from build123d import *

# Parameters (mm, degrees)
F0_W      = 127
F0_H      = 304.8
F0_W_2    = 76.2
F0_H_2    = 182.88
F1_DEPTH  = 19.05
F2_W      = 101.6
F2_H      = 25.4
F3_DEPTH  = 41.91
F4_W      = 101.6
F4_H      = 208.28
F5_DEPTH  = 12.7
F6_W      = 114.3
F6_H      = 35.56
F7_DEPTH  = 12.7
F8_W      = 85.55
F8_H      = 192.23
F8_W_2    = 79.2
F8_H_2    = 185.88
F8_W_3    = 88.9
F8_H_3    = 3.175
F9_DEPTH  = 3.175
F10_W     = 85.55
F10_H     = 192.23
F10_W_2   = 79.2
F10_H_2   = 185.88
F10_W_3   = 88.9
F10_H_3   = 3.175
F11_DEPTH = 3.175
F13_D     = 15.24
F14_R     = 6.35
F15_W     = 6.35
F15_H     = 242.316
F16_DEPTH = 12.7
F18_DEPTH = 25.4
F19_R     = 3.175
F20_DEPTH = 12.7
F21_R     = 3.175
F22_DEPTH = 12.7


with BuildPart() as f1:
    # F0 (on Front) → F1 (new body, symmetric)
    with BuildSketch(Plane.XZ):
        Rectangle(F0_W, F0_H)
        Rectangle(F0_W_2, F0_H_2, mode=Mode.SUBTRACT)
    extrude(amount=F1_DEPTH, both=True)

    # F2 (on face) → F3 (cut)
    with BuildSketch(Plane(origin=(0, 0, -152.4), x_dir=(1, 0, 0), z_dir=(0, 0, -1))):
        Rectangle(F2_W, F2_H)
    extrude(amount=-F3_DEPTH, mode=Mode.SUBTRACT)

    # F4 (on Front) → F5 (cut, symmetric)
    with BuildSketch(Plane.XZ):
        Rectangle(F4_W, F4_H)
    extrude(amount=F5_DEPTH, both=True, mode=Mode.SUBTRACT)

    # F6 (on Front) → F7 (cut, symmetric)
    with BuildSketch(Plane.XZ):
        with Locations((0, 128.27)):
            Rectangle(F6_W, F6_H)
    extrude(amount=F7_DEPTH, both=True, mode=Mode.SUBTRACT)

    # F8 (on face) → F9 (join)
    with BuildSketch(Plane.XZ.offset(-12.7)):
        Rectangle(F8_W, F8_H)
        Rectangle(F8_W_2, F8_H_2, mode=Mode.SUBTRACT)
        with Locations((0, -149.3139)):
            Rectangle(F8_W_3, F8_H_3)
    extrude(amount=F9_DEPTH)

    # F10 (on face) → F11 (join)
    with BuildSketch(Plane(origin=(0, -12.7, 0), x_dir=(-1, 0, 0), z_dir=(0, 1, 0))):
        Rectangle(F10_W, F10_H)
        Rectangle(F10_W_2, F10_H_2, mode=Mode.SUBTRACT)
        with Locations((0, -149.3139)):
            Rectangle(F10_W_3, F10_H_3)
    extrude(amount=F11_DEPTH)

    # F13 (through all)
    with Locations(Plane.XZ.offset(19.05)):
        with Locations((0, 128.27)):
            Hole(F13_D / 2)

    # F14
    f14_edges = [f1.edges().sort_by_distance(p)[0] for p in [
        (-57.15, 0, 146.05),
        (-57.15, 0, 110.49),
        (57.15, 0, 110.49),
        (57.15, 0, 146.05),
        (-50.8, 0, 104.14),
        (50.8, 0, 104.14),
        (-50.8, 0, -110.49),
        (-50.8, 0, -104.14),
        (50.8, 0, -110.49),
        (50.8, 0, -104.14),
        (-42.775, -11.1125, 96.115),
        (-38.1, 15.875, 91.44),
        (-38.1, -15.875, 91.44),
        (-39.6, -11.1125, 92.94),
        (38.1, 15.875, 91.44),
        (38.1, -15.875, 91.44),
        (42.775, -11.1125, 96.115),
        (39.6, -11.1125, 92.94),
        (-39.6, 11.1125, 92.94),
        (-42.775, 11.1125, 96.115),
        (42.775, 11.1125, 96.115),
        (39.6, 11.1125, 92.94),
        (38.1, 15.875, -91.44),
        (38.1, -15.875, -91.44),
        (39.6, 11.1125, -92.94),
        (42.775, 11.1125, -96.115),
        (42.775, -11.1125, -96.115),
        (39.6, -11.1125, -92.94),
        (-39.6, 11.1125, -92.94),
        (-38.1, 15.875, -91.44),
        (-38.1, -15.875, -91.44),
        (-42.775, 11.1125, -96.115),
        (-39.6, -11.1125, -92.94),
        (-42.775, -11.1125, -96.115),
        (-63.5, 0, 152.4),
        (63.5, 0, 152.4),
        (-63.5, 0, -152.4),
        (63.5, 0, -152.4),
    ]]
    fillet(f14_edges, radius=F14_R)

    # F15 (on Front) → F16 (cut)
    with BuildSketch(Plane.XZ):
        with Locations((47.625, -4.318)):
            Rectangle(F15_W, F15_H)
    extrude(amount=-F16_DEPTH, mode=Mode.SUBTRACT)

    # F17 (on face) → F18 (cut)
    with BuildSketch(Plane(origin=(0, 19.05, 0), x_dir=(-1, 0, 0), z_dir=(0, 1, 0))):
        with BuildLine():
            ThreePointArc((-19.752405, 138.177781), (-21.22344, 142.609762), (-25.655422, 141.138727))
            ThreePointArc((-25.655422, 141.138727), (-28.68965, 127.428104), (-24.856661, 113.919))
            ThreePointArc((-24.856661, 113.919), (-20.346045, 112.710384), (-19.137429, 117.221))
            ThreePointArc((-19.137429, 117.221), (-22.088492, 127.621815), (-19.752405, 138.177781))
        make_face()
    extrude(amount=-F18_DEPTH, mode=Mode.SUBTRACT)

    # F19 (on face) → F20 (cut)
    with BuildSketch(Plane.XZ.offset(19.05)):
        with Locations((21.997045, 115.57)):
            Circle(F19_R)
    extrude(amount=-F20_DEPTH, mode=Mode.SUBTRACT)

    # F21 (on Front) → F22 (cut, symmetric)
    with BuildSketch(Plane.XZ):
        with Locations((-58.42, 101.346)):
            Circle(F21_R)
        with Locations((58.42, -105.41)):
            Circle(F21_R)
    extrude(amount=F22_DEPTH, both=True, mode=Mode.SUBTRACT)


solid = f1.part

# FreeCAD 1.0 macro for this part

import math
import FreeCAD as App
import Part
import Sketcher

V = App.Vector
Q = App.Units.Quantity


def edges_at(feature, points):
    """Names of the edges that pass closest to the given points."""
    edges = feature.Shape.Edges
    near = lambda p: min(range(len(edges)), key=lambda i: edges[i].distToShape(Part.Vertex(*p))[0])
    return sorted({f"Edge{near(p) + 1}" for p in points})

doc = App.newDocument("Part")
body = doc.addObject("PartDesign::Body", "Body")

sketch1 = body.newObject("Sketcher::SketchObject", "Sketch")
sketch1.AttachmentSupport = (doc.getObject("XZ_Plane"), [""])
sketch1.MapMode = "FlatFace"
sketch1.addGeometry(Part.LineSegment(V(-64, 152, 0), V(-64, -152, 0)), False)
sketch1.addGeometry(Part.LineSegment(V(-64, -152, 0), V(64, -152, 0)), False)
sketch1.addGeometry(Part.LineSegment(V(64, -152, 0), V(64, 152, 0)), False)
sketch1.addGeometry(Part.LineSegment(V(64, 152, 0), V(-64, 152, 0)), False)
sketch1.addGeometry(Part.LineSegment(V(38, -91, 0), V(-38, -91, 0)), False)
sketch1.addGeometry(Part.LineSegment(V(-38, -91, 0), V(-38, 91, 0)), False)
sketch1.addGeometry(Part.LineSegment(V(-38, 91, 0), V(38, 91, 0)), False)
sketch1.addGeometry(Part.LineSegment(V(38, 91, 0), V(38, -91, 0)), False)
sketch1.addConstraint(Sketcher.Constraint("Coincident", 0, 2, 1, 1))
sketch1.addConstraint(Sketcher.Constraint("Coincident", 1, 2, 2, 1))
sketch1.addConstraint(Sketcher.Constraint("Coincident", 2, 2, 3, 1))
sketch1.addConstraint(Sketcher.Constraint("Coincident", 3, 2, 0, 1))
sketch1.addConstraint(Sketcher.Constraint("Coincident", 4, 2, 5, 1))
sketch1.addConstraint(Sketcher.Constraint("Coincident", 5, 2, 6, 1))
sketch1.addConstraint(Sketcher.Constraint("Coincident", 6, 2, 7, 1))
sketch1.addConstraint(Sketcher.Constraint("Coincident", 7, 2, 4, 1))
sketch1.addConstraint(Sketcher.Constraint("Vertical", 0))
sketch1.addConstraint(Sketcher.Constraint("Horizontal", 1))
sketch1.addConstraint(Sketcher.Constraint("Vertical", 2))
sketch1.addConstraint(Sketcher.Constraint("Horizontal", 3))
sketch1.addConstraint(Sketcher.Constraint("Horizontal", 4))
sketch1.addConstraint(Sketcher.Constraint("Vertical", 5))
sketch1.addConstraint(Sketcher.Constraint("Horizontal", 6))
sketch1.addConstraint(Sketcher.Constraint("Vertical", 7))
sketch1.addConstraint(Sketcher.Constraint("Symmetric", 0, 2, 2, 2, -1, 1))
sketch1.addConstraint(Sketcher.Constraint("Symmetric", 4, 2, 6, 2, -1, 1))
sketch1.addConstraint(Sketcher.Constraint("DistanceX", 1, 1, 1, 2, Q("5 in")))
sketch1.addConstraint(Sketcher.Constraint("DistanceX", 4, 2, 4, 1, Q("3 in")))
sketch1.addConstraint(Sketcher.Constraint("DistanceY", 0, 2, 0, 1, Q("12 in")))
sketch1.addConstraint(Sketcher.Constraint("DistanceY", 5, 1, 5, 2, Q("7.2 in")))
pad1 = body.newObject("PartDesign::Pad", "Pad")
pad1.Profile = sketch1
pad1.Length = Q("1.5 in")
pad1.Midplane = True

sketch2 = body.newObject("Sketcher::SketchObject", "Sketch001")
sketch2.AttachmentSupport = (doc.getObject("XY_Plane"), [""])
sketch2.MapMode = "FlatFace"
sketch2.AttachmentOffset = App.Placement(V(0, 0, -6 * 25.4), App.Rotation())
sketch2.addGeometry(Part.LineSegment(V(-51, -13, 0), V(-51, 13, 0)), False)
sketch2.addGeometry(Part.LineSegment(V(-51, 13, 0), V(51, 13, 0)), False)
sketch2.addGeometry(Part.LineSegment(V(51, 13, 0), V(51, -13, 0)), False)
sketch2.addGeometry(Part.LineSegment(V(51, -13, 0), V(-51, -13, 0)), False)
sketch2.addConstraint(Sketcher.Constraint("Coincident", 0, 2, 1, 1))
sketch2.addConstraint(Sketcher.Constraint("Coincident", 1, 2, 2, 1))
sketch2.addConstraint(Sketcher.Constraint("Coincident", 2, 2, 3, 1))
sketch2.addConstraint(Sketcher.Constraint("Coincident", 3, 2, 0, 1))
sketch2.addConstraint(Sketcher.Constraint("Vertical", 0))
sketch2.addConstraint(Sketcher.Constraint("Horizontal", 1))
sketch2.addConstraint(Sketcher.Constraint("Vertical", 2))
sketch2.addConstraint(Sketcher.Constraint("Horizontal", 3))
sketch2.addConstraint(Sketcher.Constraint("Symmetric", 0, 2, 2, 2, -1, 1))
sketch2.addConstraint(Sketcher.Constraint("DistanceX", 1, 1, 1, 2, Q("4 in")))
sketch2.addConstraint(Sketcher.Constraint("DistanceY", 0, 1, 0, 2, Q("1 in")))
pocket1 = body.newObject("PartDesign::Pocket", "Pocket")
pocket1.Profile = sketch2
pocket1.Length = Q("1.65 in")
pocket1.Reversed = True

sketch3 = body.newObject("Sketcher::SketchObject", "Sketch002")
sketch3.AttachmentSupport = (doc.getObject("XZ_Plane"), [""])
sketch3.MapMode = "FlatFace"
sketch3.addGeometry(Part.LineSegment(V(-51, 104, 0), V(-51, -104, 0)), False)
sketch3.addGeometry(Part.LineSegment(V(-51, -104, 0), V(51, -104, 0)), False)
sketch3.addGeometry(Part.LineSegment(V(51, -104, 0), V(51, 104, 0)), False)
sketch3.addGeometry(Part.LineSegment(V(51, 104, 0), V(-51, 104, 0)), False)
sketch3.addConstraint(Sketcher.Constraint("Coincident", 0, 2, 1, 1))
sketch3.addConstraint(Sketcher.Constraint("Coincident", 1, 2, 2, 1))
sketch3.addConstraint(Sketcher.Constraint("Coincident", 2, 2, 3, 1))
sketch3.addConstraint(Sketcher.Constraint("Coincident", 3, 2, 0, 1))
sketch3.addConstraint(Sketcher.Constraint("Vertical", 0))
sketch3.addConstraint(Sketcher.Constraint("Horizontal", 1))
sketch3.addConstraint(Sketcher.Constraint("Vertical", 2))
sketch3.addConstraint(Sketcher.Constraint("Horizontal", 3))
sketch3.addConstraint(Sketcher.Constraint("Symmetric", 0, 2, 2, 2, -1, 1))
sketch3.addConstraint(Sketcher.Constraint("DistanceX", 1, 1, 1, 2, Q("4 in")))
sketch3.addConstraint(Sketcher.Constraint("DistanceY", 0, 2, 0, 1, Q("8.2 in")))
pocket2 = body.newObject("PartDesign::Pocket", "Pocket001")
pocket2.Profile = sketch3
pocket2.Length = Q("1 in")
pocket2.Midplane = True

sketch4 = body.newObject("Sketcher::SketchObject", "Sketch003")
sketch4.AttachmentSupport = (doc.getObject("XZ_Plane"), [""])
sketch4.MapMode = "FlatFace"
sketch4.addGeometry(Part.LineSegment(V(-57, 146, 0), V(-57, 110, 0)), False)
sketch4.addGeometry(Part.LineSegment(V(-57, 110, 0), V(57, 110, 0)), False)
sketch4.addGeometry(Part.LineSegment(V(57, 110, 0), V(57, 146, 0)), False)
sketch4.addGeometry(Part.LineSegment(V(57, 146, 0), V(-57, 146, 0)), False)
sketch4.addConstraint(Sketcher.Constraint("Coincident", 0, 2, 1, 1))
sketch4.addConstraint(Sketcher.Constraint("Coincident", 1, 2, 2, 1))
sketch4.addConstraint(Sketcher.Constraint("Coincident", 2, 2, 3, 1))
sketch4.addConstraint(Sketcher.Constraint("Coincident", 3, 2, 0, 1))
sketch4.addConstraint(Sketcher.Constraint("Vertical", 0))
sketch4.addConstraint(Sketcher.Constraint("Horizontal", 1))
sketch4.addConstraint(Sketcher.Constraint("Vertical", 2))
sketch4.addConstraint(Sketcher.Constraint("Horizontal", 3))
sketch4.addConstraint(Sketcher.Constraint("DistanceX", 1, 1, 1, 2, Q("4.5 in")))
sketch4.addConstraint(Sketcher.Constraint("DistanceY", 0, 2, 0, 1, Q("1.4 in")))
sketch4.addConstraint(Sketcher.Constraint("DistanceX", 0, 2, -1, 1, Q("2.25 in")))
sketch4.addConstraint(Sketcher.Constraint("DistanceY", -1, 1, 0, 2, Q("4.35 in")))
pocket3 = body.newObject("PartDesign::Pocket", "Pocket002")
pocket3.Profile = sketch4
pocket3.Length = Q("1 in")
pocket3.Midplane = True

sketch5 = body.newObject("Sketcher::SketchObject", "Sketch004")
sketch5.AttachmentSupport = (doc.getObject("XZ_Plane"), [""])
sketch5.MapMode = "FlatFace"
sketch5.AttachmentOffset = App.Placement(V(0, 0, -0.5 * 25.4), App.Rotation())
sketch5.addGeometry(Part.LineSegment(V(-42.8, 96.1, 0), V(-42.8, -96.1, 0)), False)
sketch5.addGeometry(Part.LineSegment(V(-42.8, -96.1, 0), V(42.8, -96.1, 0)), False)
sketch5.addGeometry(Part.LineSegment(V(42.8, -96.1, 0), V(42.8, 96.1, 0)), False)
sketch5.addGeometry(Part.LineSegment(V(42.8, 96.1, 0), V(-42.8, 96.1, 0)), False)
sketch5.addGeometry(Part.LineSegment(V(39.6, -92.9, 0), V(-39.6, -92.9, 0)), False)
sketch5.addGeometry(Part.LineSegment(V(-39.6, -92.9, 0), V(-39.6, 92.9, 0)), False)
sketch5.addGeometry(Part.LineSegment(V(-39.6, 92.9, 0), V(39.6, 92.9, 0)), False)
sketch5.addGeometry(Part.LineSegment(V(39.6, 92.9, 0), V(39.6, -92.9, 0)), False)
sketch5.addGeometry(Part.LineSegment(V(-44.5, -147.7, 0), V(-44.5, -150.9, 0)), False)
sketch5.addGeometry(Part.LineSegment(V(-44.5, -150.9, 0), V(44.5, -150.9, 0)), False)
sketch5.addGeometry(Part.LineSegment(V(44.5, -150.9, 0), V(44.5, -147.7, 0)), False)
sketch5.addGeometry(Part.LineSegment(V(44.5, -147.7, 0), V(-44.5, -147.7, 0)), False)
sketch5.addConstraint(Sketcher.Constraint("Coincident", 0, 2, 1, 1))
sketch5.addConstraint(Sketcher.Constraint("Coincident", 1, 2, 2, 1))
sketch5.addConstraint(Sketcher.Constraint("Coincident", 2, 2, 3, 1))
sketch5.addConstraint(Sketcher.Constraint("Coincident", 3, 2, 0, 1))
sketch5.addConstraint(Sketcher.Constraint("Coincident", 4, 2, 5, 1))
sketch5.addConstraint(Sketcher.Constraint("Coincident", 5, 2, 6, 1))
sketch5.addConstraint(Sketcher.Constraint("Coincident", 6, 2, 7, 1))
sketch5.addConstraint(Sketcher.Constraint("Coincident", 7, 2, 4, 1))
sketch5.addConstraint(Sketcher.Constraint("Coincident", 8, 2, 9, 1))
sketch5.addConstraint(Sketcher.Constraint("Coincident", 9, 2, 10, 1))
sketch5.addConstraint(Sketcher.Constraint("Coincident", 10, 2, 11, 1))
sketch5.addConstraint(Sketcher.Constraint("Coincident", 11, 2, 8, 1))
sketch5.addConstraint(Sketcher.Constraint("Vertical", 0))
sketch5.addConstraint(Sketcher.Constraint("Horizontal", 1))
sketch5.addConstraint(Sketcher.Constraint("Vertical", 2))
sketch5.addConstraint(Sketcher.Constraint("Horizontal", 3))
sketch5.addConstraint(Sketcher.Constraint("Horizontal", 4))
sketch5.addConstraint(Sketcher.Constraint("Vertical", 5))
sketch5.addConstraint(Sketcher.Constraint("Horizontal", 6))
sketch5.addConstraint(Sketcher.Constraint("Vertical", 7))
sketch5.addConstraint(Sketcher.Constraint("Vertical", 8))
sketch5.addConstraint(Sketcher.Constraint("Horizontal", 9))
sketch5.addConstraint(Sketcher.Constraint("Vertical", 10))
sketch5.addConstraint(Sketcher.Constraint("Horizontal", 11))
sketch5.addConstraint(Sketcher.Constraint("Symmetric", 0, 2, 2, 2, -1, 1))
sketch5.addConstraint(Sketcher.Constraint("Symmetric", 4, 2, 6, 2, -1, 1))
sketch5.addConstraint(Sketcher.Constraint("DistanceX", 9, 1, 9, 2, Q("3.5 in")))
sketch5.addConstraint(Sketcher.Constraint("DistanceY", 8, 2, 8, 1, Q("0.125 in")))
sketch5.addConstraint(Sketcher.Constraint("DistanceX", 8, 2, -1, 1, Q("1.75 in")))
sketch5.addConstraint(Sketcher.Constraint("DistanceY", 8, 2, -1, 1, Q("5.941 in")))
sketch5.addConstraint(Sketcher.Constraint("DistanceX", 0, 2, 4, 2, Q("0.125 in")))
sketch5.addConstraint(Sketcher.Constraint("DistanceY", 0, 2, 4, 2, Q("0.125 in")))
sketch5.addConstraint(Sketcher.Constraint("DistanceX", 1, 1, 1, 2, Q("85.55 mm")))
sketch5.addConstraint(Sketcher.Constraint("DistanceY", 0, 2, 0, 1, Q("192.23 mm")))
pad2 = body.newObject("PartDesign::Pad", "Pad001")
pad2.Profile = sketch5
pad2.Length = Q("0.125 in")

sketch6 = body.newObject("Sketcher::SketchObject", "Sketch005")
sketch6.AttachmentSupport = (doc.getObject("XZ_Plane"), [""])
sketch6.MapMode = "FlatFace"
sketch6.AttachmentOffset = App.Placement(V(0, 0, 0.5 * 25.4), App.Rotation())
sketch6.addGeometry(Part.LineSegment(V(42.8, 96.1, 0), V(42.8, -96.1, 0)), False)
sketch6.addGeometry(Part.LineSegment(V(42.8, -96.1, 0), V(-42.8, -96.1, 0)), False)
sketch6.addGeometry(Part.LineSegment(V(-42.8, -96.1, 0), V(-42.8, 96.1, 0)), False)
sketch6.addGeometry(Part.LineSegment(V(-42.8, 96.1, 0), V(42.8, 96.1, 0)), False)
sketch6.addGeometry(Part.LineSegment(V(-39.6, -92.9, 0), V(39.6, -92.9, 0)), False)
sketch6.addGeometry(Part.LineSegment(V(39.6, -92.9, 0), V(39.6, 92.9, 0)), False)
sketch6.addGeometry(Part.LineSegment(V(39.6, 92.9, 0), V(-39.6, 92.9, 0)), False)
sketch6.addGeometry(Part.LineSegment(V(-39.6, 92.9, 0), V(-39.6, -92.9, 0)), False)
sketch6.addGeometry(Part.LineSegment(V(44.5, -147.7, 0), V(44.5, -150.9, 0)), False)
sketch6.addGeometry(Part.LineSegment(V(44.5, -150.9, 0), V(-44.5, -150.9, 0)), False)
sketch6.addGeometry(Part.LineSegment(V(-44.5, -150.9, 0), V(-44.5, -147.7, 0)), False)
sketch6.addGeometry(Part.LineSegment(V(-44.5, -147.7, 0), V(44.5, -147.7, 0)), False)
sketch6.addConstraint(Sketcher.Constraint("Coincident", 0, 2, 1, 1))
sketch6.addConstraint(Sketcher.Constraint("Coincident", 1, 2, 2, 1))
sketch6.addConstraint(Sketcher.Constraint("Coincident", 2, 2, 3, 1))
sketch6.addConstraint(Sketcher.Constraint("Coincident", 3, 2, 0, 1))
sketch6.addConstraint(Sketcher.Constraint("Coincident", 4, 2, 5, 1))
sketch6.addConstraint(Sketcher.Constraint("Coincident", 5, 2, 6, 1))
sketch6.addConstraint(Sketcher.Constraint("Coincident", 6, 2, 7, 1))
sketch6.addConstraint(Sketcher.Constraint("Coincident", 7, 2, 4, 1))
sketch6.addConstraint(Sketcher.Constraint("Coincident", 8, 2, 9, 1))
sketch6.addConstraint(Sketcher.Constraint("Coincident", 9, 2, 10, 1))
sketch6.addConstraint(Sketcher.Constraint("Coincident", 10, 2, 11, 1))
sketch6.addConstraint(Sketcher.Constraint("Coincident", 11, 2, 8, 1))
sketch6.addConstraint(Sketcher.Constraint("Vertical", 0))
sketch6.addConstraint(Sketcher.Constraint("Horizontal", 1))
sketch6.addConstraint(Sketcher.Constraint("Vertical", 2))
sketch6.addConstraint(Sketcher.Constraint("Horizontal", 3))
sketch6.addConstraint(Sketcher.Constraint("Horizontal", 4))
sketch6.addConstraint(Sketcher.Constraint("Vertical", 5))
sketch6.addConstraint(Sketcher.Constraint("Horizontal", 6))
sketch6.addConstraint(Sketcher.Constraint("Vertical", 7))
sketch6.addConstraint(Sketcher.Constraint("Vertical", 8))
sketch6.addConstraint(Sketcher.Constraint("Horizontal", 9))
sketch6.addConstraint(Sketcher.Constraint("Vertical", 10))
sketch6.addConstraint(Sketcher.Constraint("Horizontal", 11))
sketch6.addConstraint(Sketcher.Constraint("Symmetric", 0, 2, 2, 2, -1, 1))
sketch6.addConstraint(Sketcher.Constraint("Symmetric", 4, 2, 6, 2, -1, 1))
sketch6.addConstraint(Sketcher.Constraint("DistanceX", 9, 2, 9, 1, Q("3.5 in")))
sketch6.addConstraint(Sketcher.Constraint("DistanceY", 8, 2, 8, 1, Q("0.125 in")))
sketch6.addConstraint(Sketcher.Constraint("DistanceX", -1, 1, 8, 2, Q("1.75 in")))
sketch6.addConstraint(Sketcher.Constraint("DistanceY", 8, 2, -1, 1, Q("5.941 in")))
sketch6.addConstraint(Sketcher.Constraint("DistanceX", 4, 2, 0, 2, Q("0.125 in")))
sketch6.addConstraint(Sketcher.Constraint("DistanceY", 0, 2, 4, 2, Q("0.125 in")))
sketch6.addConstraint(Sketcher.Constraint("DistanceX", 1, 2, 1, 1, Q("85.55 mm")))
sketch6.addConstraint(Sketcher.Constraint("DistanceY", 0, 2, 0, 1, Q("192.23 mm")))
pad3 = body.newObject("PartDesign::Pad", "Pad002")
pad3.Profile = sketch6
pad3.Length = Q("0.125 in")
pad3.Reversed = True

sketch7 = body.newObject("Sketcher::SketchObject", "Sketch006")
sketch7.AttachmentSupport = (doc.getObject("XZ_Plane"), [""])
sketch7.MapMode = "FlatFace"
sketch7.AttachmentOffset = App.Placement(V(0, 0, 0.75 * 25.4), App.Rotation())
sketch7.addGeometry(Part.Circle(V(0, 128, 0), V(0, 0, 1), 8), False)
sketch7.addConstraint(Sketcher.Constraint("PointOnObject", 0, 3, -2))
sketch7.addConstraint(Sketcher.Constraint("Diameter", 0, Q("0.6 in")))
sketch7.addConstraint(Sketcher.Constraint("DistanceY", -1, 1, 0, 3, Q("5.05 in")))
doc.recompute()
hole = body.newObject("PartDesign::Hole", "Hole")
hole.Profile = sketch7
hole.ThreadType = "None"
hole.Diameter = Q("0.6 in")
hole.DepthType = "ThroughAll"
doc.recompute()

fillet = body.newObject("PartDesign::Fillet", "Fillet")
fillet.Base = (hole, edges_at(hole, [
    (-57.15, 0, 146.05),
    (-57.15, 0, 110.49),
    (57.15, 0, 110.49),
    (57.15, 0, 146.05),
    (-50.8, 0, 104.14),
    (50.8, 0, 104.14),
    (-50.8, 0, -110.49),
    (-50.8, 0, -104.14),
    (50.8, 0, -110.49),
    (50.8, 0, -104.14),
    (-42.775, -11.113, 96.115),
    (-38.1, 15.875, 91.44),
    (-38.1, -15.875, 91.44),
    (-39.6, -11.113, 92.94),
    (38.1, 15.875, 91.44),
    (38.1, -15.875, 91.44),
    (42.775, -11.113, 96.115),
    (39.6, -11.113, 92.94),
    (-39.6, 11.113, 92.94),
    (-42.775, 11.113, 96.115),
    (42.775, 11.113, 96.115),
    (39.6, 11.113, 92.94),
    (38.1, 15.875, -91.44),
    (38.1, -15.875, -91.44),
    (39.6, 11.113, -92.94),
    (42.775, 11.113, -96.115),
    (42.775, -11.113, -96.115),
    (39.6, -11.113, -92.94),
    (-39.6, 11.113, -92.94),
    (-38.1, 15.875, -91.44),
    (-38.1, -15.875, -91.44),
    (-42.775, 11.113, -96.115),
    (-39.6, -11.113, -92.94),
    (-42.775, -11.113, -96.115),
    (-63.5, 0, 152.4),
    (63.5, 0, 152.4),
    (-63.5, 0, -152.4),
    (63.5, 0, -152.4),
]))
fillet.Radius = Q("0.25 in")

sketch8 = body.newObject("Sketcher::SketchObject", "Sketch007")
sketch8.AttachmentSupport = (doc.getObject("XZ_Plane"), [""])
sketch8.MapMode = "FlatFace"
sketch8.addGeometry(Part.LineSegment(V(44, 117, 0), V(44, -125, 0)), False)
sketch8.addGeometry(Part.LineSegment(V(44, -125, 0), V(51, -125, 0)), False)
sketch8.addGeometry(Part.LineSegment(V(51, -125, 0), V(51, 117, 0)), False)
sketch8.addGeometry(Part.LineSegment(V(51, 117, 0), V(44, 117, 0)), False)
sketch8.addConstraint(Sketcher.Constraint("Coincident", 0, 2, 1, 1))
sketch8.addConstraint(Sketcher.Constraint("Coincident", 1, 2, 2, 1))
sketch8.addConstraint(Sketcher.Constraint("Coincident", 2, 2, 3, 1))
sketch8.addConstraint(Sketcher.Constraint("Coincident", 3, 2, 0, 1))
sketch8.addConstraint(Sketcher.Constraint("Vertical", 0))
sketch8.addConstraint(Sketcher.Constraint("Horizontal", 1))
sketch8.addConstraint(Sketcher.Constraint("Vertical", 2))
sketch8.addConstraint(Sketcher.Constraint("Horizontal", 3))
sketch8.addConstraint(Sketcher.Constraint("DistanceX", -1, 1, 1, 2, Q("2 in")))
sketch8.addConstraint(Sketcher.Constraint("DistanceX", 1, 1, 1, 2, Q("0.25 in")))
sketch8.addConstraint(Sketcher.Constraint("DistanceY", 0, 2, 0, 1, Q("9.54 in")))
sketch8.addConstraint(Sketcher.Constraint("DistanceY", -1, 1, 2, 2, Q("4.6 in")))
pocket4 = body.newObject("PartDesign::Pocket", "Pocket003")
pocket4.Profile = sketch8
pocket4.Length = Q("0.5 in")

sketch9 = body.newObject("Sketcher::SketchObject", "Sketch008")
sketch9.AttachmentSupport = (doc.getObject("XZ_Plane"), [""])
sketch9.MapMode = "FlatFace"
sketch9.AttachmentOffset = App.Placement(V(0, 0, -0.75 * 25.4), App.Rotation())
sketch9.addGeometry(Part.ArcOfCircle(Part.Circle(V(22.7, 139.7, 0), V(0, 0, 1), 3.3), math.radians(27), math.radians(207)), False)
sketch9.addGeometry(Part.ArcOfCircle(Part.Circle(V(0, 128.3, 0), V(0, 0, 1), 28.7), math.radians(-30), math.radians(27)), False)
sketch9.addGeometry(Part.ArcOfCircle(Part.Circle(V(22, 115.6, 0), V(0, 0, 1), 3.3), math.radians(150), math.radians(330)), False)
sketch9.addGeometry(Part.ArcOfCircle(Part.Circle(V(0, 128.3, 0), V(0, 0, 1), 22.1), math.radians(-30), math.radians(27)), False)
sketch9.addConstraint(Sketcher.Constraint("Tangent", 0, 1, 1, 2))
sketch9.addConstraint(Sketcher.Constraint("Tangent", 1, 1, 2, 2))
sketch9.addConstraint(Sketcher.Constraint("Tangent", 2, 1, 3, 1))
sketch9.addConstraint(Sketcher.Constraint("Tangent", 3, 2, 0, 2))
sketch9.addConstraint(Sketcher.Constraint("Coincident", 3, 3, 1, 3))
sketch9.addConstraint(Sketcher.Constraint("PointOnObject", 1, 3, -2))
sketch9.addConstraint(Sketcher.Constraint("Radius", 0, Q("0.13 in")))
sketch9.addConstraint(Sketcher.Constraint("Radius", 1, Q("1.13 in")))
sketch9.addConstraint(Sketcher.Constraint("DistanceY", 2, 3, 1, 3, Q("0.5 in")))
sketch9.addConstraint(Sketcher.Constraint("DistanceY", -1, 1, 1, 3, Q("5.05 in")))
sketch9.addConstraint(Sketcher.Constraint("DistanceY", -1, 1, 3, 2, Q("138.177781 mm")))
pocket5 = body.newObject("PartDesign::Pocket", "Pocket004")
pocket5.Profile = sketch9
pocket5.Length = Q("1 in")
pocket5.Reversed = True

sketch10 = body.newObject("Sketcher::SketchObject", "Sketch009")
sketch10.AttachmentSupport = (doc.getObject("XZ_Plane"), [""])
sketch10.MapMode = "FlatFace"
sketch10.AttachmentOffset = App.Placement(V(0, 0, 0.75 * 25.4), App.Rotation())
sketch10.addGeometry(Part.Circle(V(22, 115.6, 0), V(0, 0, 1), 3.2), False)
sketch10.addConstraint(Sketcher.Constraint("Diameter", 0, Q("0.25 in")))
sketch10.addConstraint(Sketcher.Constraint("DistanceY", -1, 1, 0, 3, Q("4.55 in")))
sketch10.addConstraint(Sketcher.Constraint("DistanceX", -1, 1, 0, 3, Q("21.997045 mm")))
pocket6 = body.newObject("PartDesign::Pocket", "Pocket005")
pocket6.Profile = sketch10
pocket6.Length = Q("0.5 in")

sketch11 = body.newObject("Sketcher::SketchObject", "Sketch010")
sketch11.AttachmentSupport = (doc.getObject("XZ_Plane"), [""])
sketch11.MapMode = "FlatFace"
sketch11.addGeometry(Part.Circle(V(-58.4, 101.3, 0), V(0, 0, 1), 3.2), False)
sketch11.addGeometry(Part.Circle(V(58.4, -105.4, 0), V(0, 0, 1), 3.2), False)
sketch11.addConstraint(Sketcher.Constraint("Equal", 0, 1))
sketch11.addConstraint(Sketcher.Constraint("Diameter", 0, Q("0.25 in")))
sketch11.addConstraint(Sketcher.Constraint("DistanceX", 0, 3, -1, 1, Q("2.3 in")))
sketch11.addConstraint(Sketcher.Constraint("DistanceX", -1, 1, 1, 3, Q("2.3 in")))
sketch11.addConstraint(Sketcher.Constraint("DistanceY", -1, 1, 0, 3, Q("3.99 in")))
sketch11.addConstraint(Sketcher.Constraint("DistanceY", 1, 3, -1, 1, Q("4.15 in")))
pocket7 = body.newObject("PartDesign::Pocket", "Pocket006")
pocket7.Profile = sketch11
pocket7.Length = Q("1 in")
pocket7.Midplane = True

doc.recompute()
